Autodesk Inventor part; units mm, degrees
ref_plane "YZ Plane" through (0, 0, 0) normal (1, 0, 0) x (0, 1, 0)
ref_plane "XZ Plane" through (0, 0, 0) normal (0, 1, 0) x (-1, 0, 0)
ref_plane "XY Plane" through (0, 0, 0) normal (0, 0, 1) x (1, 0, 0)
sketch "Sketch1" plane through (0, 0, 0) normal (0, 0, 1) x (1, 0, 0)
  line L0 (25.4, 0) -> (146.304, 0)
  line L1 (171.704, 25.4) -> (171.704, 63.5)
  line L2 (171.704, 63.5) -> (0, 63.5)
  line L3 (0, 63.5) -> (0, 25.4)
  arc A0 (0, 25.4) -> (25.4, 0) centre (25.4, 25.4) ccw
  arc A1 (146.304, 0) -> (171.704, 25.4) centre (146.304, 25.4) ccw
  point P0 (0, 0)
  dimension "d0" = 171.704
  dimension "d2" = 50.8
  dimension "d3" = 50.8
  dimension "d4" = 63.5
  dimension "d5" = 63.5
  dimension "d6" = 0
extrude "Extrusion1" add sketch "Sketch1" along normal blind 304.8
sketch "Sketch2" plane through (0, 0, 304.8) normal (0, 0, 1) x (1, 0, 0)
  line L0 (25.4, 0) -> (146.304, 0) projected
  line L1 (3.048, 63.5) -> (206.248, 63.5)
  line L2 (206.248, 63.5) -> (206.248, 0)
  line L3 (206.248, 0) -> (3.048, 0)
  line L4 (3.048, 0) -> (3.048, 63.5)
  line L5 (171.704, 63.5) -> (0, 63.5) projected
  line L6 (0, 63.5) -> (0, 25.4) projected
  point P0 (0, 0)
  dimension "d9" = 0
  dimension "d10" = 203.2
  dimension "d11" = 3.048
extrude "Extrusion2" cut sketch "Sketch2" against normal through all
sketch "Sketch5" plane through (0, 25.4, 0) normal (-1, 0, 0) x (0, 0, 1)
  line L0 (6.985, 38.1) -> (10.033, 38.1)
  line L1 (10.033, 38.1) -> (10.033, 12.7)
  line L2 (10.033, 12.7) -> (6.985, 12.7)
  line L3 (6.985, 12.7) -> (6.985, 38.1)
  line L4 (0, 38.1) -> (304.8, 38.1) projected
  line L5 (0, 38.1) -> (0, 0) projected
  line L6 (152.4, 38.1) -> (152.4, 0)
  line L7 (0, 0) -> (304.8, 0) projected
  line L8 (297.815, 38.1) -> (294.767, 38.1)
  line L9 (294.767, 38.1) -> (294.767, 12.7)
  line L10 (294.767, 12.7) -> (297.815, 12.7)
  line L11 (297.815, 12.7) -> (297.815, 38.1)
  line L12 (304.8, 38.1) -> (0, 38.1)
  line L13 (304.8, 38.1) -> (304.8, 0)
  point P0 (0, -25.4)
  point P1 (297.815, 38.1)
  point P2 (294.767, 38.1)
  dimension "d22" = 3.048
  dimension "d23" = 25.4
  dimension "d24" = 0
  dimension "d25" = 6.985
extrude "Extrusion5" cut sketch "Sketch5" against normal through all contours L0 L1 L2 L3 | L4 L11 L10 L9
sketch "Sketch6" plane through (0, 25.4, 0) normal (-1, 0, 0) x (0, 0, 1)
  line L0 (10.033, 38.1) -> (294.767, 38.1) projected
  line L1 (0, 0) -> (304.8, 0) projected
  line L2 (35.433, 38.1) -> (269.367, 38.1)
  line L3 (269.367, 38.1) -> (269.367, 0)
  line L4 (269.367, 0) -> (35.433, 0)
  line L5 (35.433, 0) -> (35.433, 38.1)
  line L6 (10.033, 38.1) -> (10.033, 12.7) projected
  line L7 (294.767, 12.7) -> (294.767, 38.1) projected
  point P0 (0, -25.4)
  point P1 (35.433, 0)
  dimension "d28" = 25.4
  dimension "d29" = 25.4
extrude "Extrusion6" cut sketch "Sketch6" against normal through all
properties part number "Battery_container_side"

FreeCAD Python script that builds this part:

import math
import FreeCAD as App
import Part
import Sketcher
Q = App.Units.Quantity

doc = App.newDocument("Part")
body = doc.addObject("PartDesign::Body", "Body")

# Sketch on XY plane
sketch1 = body.newObject("Sketcher::SketchObject", "Sketch")
sketch1.AttachmentSupport = (doc.getObject("XY_Plane"), [""])
sketch1.MapMode = "FlatFace"
sketch1.addGeometry([
    Part.ArcOfCircle(Part.Circle(App.Vector(25, 25, 0), App.Vector(0, 0, 1), 25), math.radians(180), math.radians(270)),  # 0
    Part.LineSegment(App.Vector(25, 0, 0), App.Vector(146, 0, 0)),  # 1
    Part.ArcOfCircle(Part.Circle(App.Vector(146, 25, 0), App.Vector(0, 0, 1), 25), math.radians(-90), math.radians(0)),  # 2
    Part.LineSegment(App.Vector(172, 25, 0), App.Vector(172, 64, 0)),  # 3
    Part.LineSegment(App.Vector(172, 64, 0), App.Vector(0, 64, 0)),  # 4
    Part.LineSegment(App.Vector(0, 64, 0), App.Vector(0, 25, 0)),  # 5
], False)
sketch1.addConstraint([
    Sketcher.Constraint("Tangent", 0, 2, 1, 1),
    Sketcher.Constraint("Tangent", 1, 2, 2, 1),
    Sketcher.Constraint("Tangent", 2, 2, 3, 1),
    Sketcher.Constraint("Coincident", 3, 2, 4, 1),
    Sketcher.Constraint("Coincident", 4, 2, 5, 1),
    Sketcher.Constraint("Tangent", 5, 2, 0, 1),
    Sketcher.Constraint("Horizontal", 1),
    Sketcher.Constraint("Vertical", 3),
    Sketcher.Constraint("Horizontal", 4),
    Sketcher.Constraint("Vertical", 5),
    Sketcher.Constraint("Equal", 0, 2),
    Sketcher.Constraint("PointOnObject", 0, 2, -1),
    Sketcher.Constraint("PointOnObject", 4, 2, -2),
    Sketcher.Constraint("Radius", 0, Q("1 in")),
    Sketcher.Constraint("DistanceX", 4, 2, 4, 1, Q("6.76 in")),
    Sketcher.Constraint("DistanceY", -1, 1, 3, 2, Q("2.5 in")),
])
pad1 = body.newObject("PartDesign::Pad", "Pad")
pad1.Profile = sketch1
pad1.Length = Q("12 in")

# Sketch on XY plane
sketch2 = body.newObject("Sketcher::SketchObject", "Sketch001")
sketch2.AttachmentSupport = (doc.getObject("XY_Plane"), [""])
sketch2.MapMode = "FlatFace"
sketch2.AttachmentOffset = App.Placement(App.Vector(0, 0, 12 * 25.4), App.Rotation())
sketch2.addGeometry([
    Part.LineSegment(App.Vector(3, 0, 0), App.Vector(206, 0, 0)),
    Part.LineSegment(App.Vector(206, 0, 0), App.Vector(206, 64, 0)),
    Part.LineSegment(App.Vector(206, 64, 0), App.Vector(3, 64, 0)),
    Part.LineSegment(App.Vector(3, 64, 0), App.Vector(3, 0, 0)),
], False)
sketch2.addConstraint([
    Sketcher.Constraint("Coincident", 0, 2, 1, 1),
    Sketcher.Constraint("Coincident", 1, 2, 2, 1),
    Sketcher.Constraint("Coincident", 2, 2, 3, 1),
    Sketcher.Constraint("Coincident", 3, 2, 0, 1),
    Sketcher.Constraint("Horizontal", 0),
    Sketcher.Constraint("Vertical", 1),
    Sketcher.Constraint("Horizontal", 2),
    Sketcher.Constraint("Vertical", 3),
    Sketcher.Constraint("PointOnObject", 0, 2, -1),
    Sketcher.Constraint("DistanceX", 0, 1, 0, 2, Q("8 in")),
    Sketcher.Constraint("DistanceX", -1, 1, 2, 2, Q("0.12 in")),
    Sketcher.Constraint("DistanceY", 1, 1, 1, 2, Q("2.5 in")),
])
pocket1 = body.newObject("PartDesign::Pocket", "Pocket")
pocket1.Profile = sketch2
pocket1.Type = "ThroughAll"

# Sketch on YZ plane
sketch3 = body.newObject("Sketcher::SketchObject", "Sketch002")
sketch3.AttachmentSupport = (doc.getObject("YZ_Plane"), [""])
sketch3.MapMode = "FlatFace"
sketch3.addGeometry([
    Part.LineSegment(App.Vector(63.5, 10, 0), App.Vector(63.5, 7, 0)),  # 0
    Part.LineSegment(App.Vector(63.5, 7, 0), App.Vector(38.1, 7, 0)),  # 1
    Part.LineSegment(App.Vector(38.1, 7, 0), App.Vector(38.1, 10, 0)),  # 2
    Part.LineSegment(App.Vector(38.1, 10, 0), App.Vector(63.5, 10, 0)),  # 3
    Part.LineSegment(App.Vector(63.5, 297.8, 0), App.Vector(63.5, 294.8, 0)),  # 4
    Part.LineSegment(App.Vector(63.5, 294.8, 0), App.Vector(38.1, 294.8, 0)),  # 5
    Part.LineSegment(App.Vector(38.1, 294.8, 0), App.Vector(38.1, 297.8, 0)),  # 6
    Part.LineSegment(App.Vector(38.1, 297.8, 0), App.Vector(63.5, 297.8, 0)),  # 7
], False)
sketch3.addConstraint([
    Sketcher.Constraint("Coincident", 0, 2, 1, 1),
    Sketcher.Constraint("Coincident", 1, 2, 2, 1),
    Sketcher.Constraint("Coincident", 2, 2, 3, 1),
    Sketcher.Constraint("Coincident", 3, 2, 0, 1),
    Sketcher.Constraint("Coincident", 4, 2, 5, 1),
    Sketcher.Constraint("Coincident", 5, 2, 6, 1),
    Sketcher.Constraint("Coincident", 6, 2, 7, 1),
    Sketcher.Constraint("Coincident", 7, 2, 4, 1),
    Sketcher.Constraint("Vertical", 0),
    Sketcher.Constraint("Horizontal", 1),
    Sketcher.Constraint("Vertical", 2),
    Sketcher.Constraint("Horizontal", 3),
    Sketcher.Constraint("Vertical", 4),
    Sketcher.Constraint("Horizontal", 5),
    Sketcher.Constraint("Vertical", 6),
    Sketcher.Constraint("Horizontal", 7),
    Sketcher.Constraint("Vertical", 3, 2, 4, 2),
    Sketcher.Constraint("Vertical", 2, 2, 5, 2),
    Sketcher.Constraint("Equal", 2, 4),
    Sketcher.Constraint("DistanceX", 1, 2, 1, 1, Q("1 in")),
    Sketcher.Constraint("DistanceY", 0, 2, 0, 1, Q("0.12 in")),
    Sketcher.Constraint("DistanceY", -1, 1, 0, 2, Q("0.275 in")),
    Sketcher.Constraint("DistanceX", -1, 1, 0, 2, Q("2.5 in")),
    Sketcher.Constraint("DistanceY", 3, 2, 4, 2, Q("11.21 in")),
])
pocket2 = body.newObject("PartDesign::Pocket", "Pocket001")
pocket2.Profile = sketch3
pocket2.Type = "ThroughAll"
pocket2.Reversed = True

# Sketch on YZ plane
sketch4 = body.newObject("Sketcher::SketchObject", "Sketch003")
sketch4.AttachmentSupport = (doc.getObject("YZ_Plane"), [""])
sketch4.MapMode = "FlatFace"
sketch4.addGeometry([
    Part.LineSegment(App.Vector(64, 269, 0), App.Vector(64, 35, 0)),
    Part.LineSegment(App.Vector(64, 35, 0), App.Vector(25, 35, 0)),
    Part.LineSegment(App.Vector(25, 35, 0), App.Vector(25, 269, 0)),
    Part.LineSegment(App.Vector(25, 269, 0), App.Vector(64, 269, 0)),
], False)
sketch4.addConstraint([
    Sketcher.Constraint("Coincident", 0, 2, 1, 1),
    Sketcher.Constraint("Coincident", 1, 2, 2, 1),
    Sketcher.Constraint("Coincident", 2, 2, 3, 1),
    Sketcher.Constraint("Coincident", 3, 2, 0, 1),
    Sketcher.Constraint("Vertical", 0),
    Sketcher.Constraint("Horizontal", 1),
    Sketcher.Constraint("Vertical", 2),
    Sketcher.Constraint("Horizontal", 3),
    Sketcher.Constraint("DistanceX", -1, 1, 1, 2, Q("1 in")),
    Sketcher.Constraint("DistanceX", 1, 2, 1, 1, Q("1.5 in")),
    Sketcher.Constraint("DistanceY", 0, 2, 0, 1, Q("9.21 in")),
    Sketcher.Constraint("DistanceY", -1, 1, 0, 2, Q("1.395 in")),
])
pocket3 = body.newObject("PartDesign::Pocket", "Pocket002")
pocket3.Profile = sketch4
pocket3.Type = "ThroughAll"
pocket3.Reversed = True

doc.recompute()
